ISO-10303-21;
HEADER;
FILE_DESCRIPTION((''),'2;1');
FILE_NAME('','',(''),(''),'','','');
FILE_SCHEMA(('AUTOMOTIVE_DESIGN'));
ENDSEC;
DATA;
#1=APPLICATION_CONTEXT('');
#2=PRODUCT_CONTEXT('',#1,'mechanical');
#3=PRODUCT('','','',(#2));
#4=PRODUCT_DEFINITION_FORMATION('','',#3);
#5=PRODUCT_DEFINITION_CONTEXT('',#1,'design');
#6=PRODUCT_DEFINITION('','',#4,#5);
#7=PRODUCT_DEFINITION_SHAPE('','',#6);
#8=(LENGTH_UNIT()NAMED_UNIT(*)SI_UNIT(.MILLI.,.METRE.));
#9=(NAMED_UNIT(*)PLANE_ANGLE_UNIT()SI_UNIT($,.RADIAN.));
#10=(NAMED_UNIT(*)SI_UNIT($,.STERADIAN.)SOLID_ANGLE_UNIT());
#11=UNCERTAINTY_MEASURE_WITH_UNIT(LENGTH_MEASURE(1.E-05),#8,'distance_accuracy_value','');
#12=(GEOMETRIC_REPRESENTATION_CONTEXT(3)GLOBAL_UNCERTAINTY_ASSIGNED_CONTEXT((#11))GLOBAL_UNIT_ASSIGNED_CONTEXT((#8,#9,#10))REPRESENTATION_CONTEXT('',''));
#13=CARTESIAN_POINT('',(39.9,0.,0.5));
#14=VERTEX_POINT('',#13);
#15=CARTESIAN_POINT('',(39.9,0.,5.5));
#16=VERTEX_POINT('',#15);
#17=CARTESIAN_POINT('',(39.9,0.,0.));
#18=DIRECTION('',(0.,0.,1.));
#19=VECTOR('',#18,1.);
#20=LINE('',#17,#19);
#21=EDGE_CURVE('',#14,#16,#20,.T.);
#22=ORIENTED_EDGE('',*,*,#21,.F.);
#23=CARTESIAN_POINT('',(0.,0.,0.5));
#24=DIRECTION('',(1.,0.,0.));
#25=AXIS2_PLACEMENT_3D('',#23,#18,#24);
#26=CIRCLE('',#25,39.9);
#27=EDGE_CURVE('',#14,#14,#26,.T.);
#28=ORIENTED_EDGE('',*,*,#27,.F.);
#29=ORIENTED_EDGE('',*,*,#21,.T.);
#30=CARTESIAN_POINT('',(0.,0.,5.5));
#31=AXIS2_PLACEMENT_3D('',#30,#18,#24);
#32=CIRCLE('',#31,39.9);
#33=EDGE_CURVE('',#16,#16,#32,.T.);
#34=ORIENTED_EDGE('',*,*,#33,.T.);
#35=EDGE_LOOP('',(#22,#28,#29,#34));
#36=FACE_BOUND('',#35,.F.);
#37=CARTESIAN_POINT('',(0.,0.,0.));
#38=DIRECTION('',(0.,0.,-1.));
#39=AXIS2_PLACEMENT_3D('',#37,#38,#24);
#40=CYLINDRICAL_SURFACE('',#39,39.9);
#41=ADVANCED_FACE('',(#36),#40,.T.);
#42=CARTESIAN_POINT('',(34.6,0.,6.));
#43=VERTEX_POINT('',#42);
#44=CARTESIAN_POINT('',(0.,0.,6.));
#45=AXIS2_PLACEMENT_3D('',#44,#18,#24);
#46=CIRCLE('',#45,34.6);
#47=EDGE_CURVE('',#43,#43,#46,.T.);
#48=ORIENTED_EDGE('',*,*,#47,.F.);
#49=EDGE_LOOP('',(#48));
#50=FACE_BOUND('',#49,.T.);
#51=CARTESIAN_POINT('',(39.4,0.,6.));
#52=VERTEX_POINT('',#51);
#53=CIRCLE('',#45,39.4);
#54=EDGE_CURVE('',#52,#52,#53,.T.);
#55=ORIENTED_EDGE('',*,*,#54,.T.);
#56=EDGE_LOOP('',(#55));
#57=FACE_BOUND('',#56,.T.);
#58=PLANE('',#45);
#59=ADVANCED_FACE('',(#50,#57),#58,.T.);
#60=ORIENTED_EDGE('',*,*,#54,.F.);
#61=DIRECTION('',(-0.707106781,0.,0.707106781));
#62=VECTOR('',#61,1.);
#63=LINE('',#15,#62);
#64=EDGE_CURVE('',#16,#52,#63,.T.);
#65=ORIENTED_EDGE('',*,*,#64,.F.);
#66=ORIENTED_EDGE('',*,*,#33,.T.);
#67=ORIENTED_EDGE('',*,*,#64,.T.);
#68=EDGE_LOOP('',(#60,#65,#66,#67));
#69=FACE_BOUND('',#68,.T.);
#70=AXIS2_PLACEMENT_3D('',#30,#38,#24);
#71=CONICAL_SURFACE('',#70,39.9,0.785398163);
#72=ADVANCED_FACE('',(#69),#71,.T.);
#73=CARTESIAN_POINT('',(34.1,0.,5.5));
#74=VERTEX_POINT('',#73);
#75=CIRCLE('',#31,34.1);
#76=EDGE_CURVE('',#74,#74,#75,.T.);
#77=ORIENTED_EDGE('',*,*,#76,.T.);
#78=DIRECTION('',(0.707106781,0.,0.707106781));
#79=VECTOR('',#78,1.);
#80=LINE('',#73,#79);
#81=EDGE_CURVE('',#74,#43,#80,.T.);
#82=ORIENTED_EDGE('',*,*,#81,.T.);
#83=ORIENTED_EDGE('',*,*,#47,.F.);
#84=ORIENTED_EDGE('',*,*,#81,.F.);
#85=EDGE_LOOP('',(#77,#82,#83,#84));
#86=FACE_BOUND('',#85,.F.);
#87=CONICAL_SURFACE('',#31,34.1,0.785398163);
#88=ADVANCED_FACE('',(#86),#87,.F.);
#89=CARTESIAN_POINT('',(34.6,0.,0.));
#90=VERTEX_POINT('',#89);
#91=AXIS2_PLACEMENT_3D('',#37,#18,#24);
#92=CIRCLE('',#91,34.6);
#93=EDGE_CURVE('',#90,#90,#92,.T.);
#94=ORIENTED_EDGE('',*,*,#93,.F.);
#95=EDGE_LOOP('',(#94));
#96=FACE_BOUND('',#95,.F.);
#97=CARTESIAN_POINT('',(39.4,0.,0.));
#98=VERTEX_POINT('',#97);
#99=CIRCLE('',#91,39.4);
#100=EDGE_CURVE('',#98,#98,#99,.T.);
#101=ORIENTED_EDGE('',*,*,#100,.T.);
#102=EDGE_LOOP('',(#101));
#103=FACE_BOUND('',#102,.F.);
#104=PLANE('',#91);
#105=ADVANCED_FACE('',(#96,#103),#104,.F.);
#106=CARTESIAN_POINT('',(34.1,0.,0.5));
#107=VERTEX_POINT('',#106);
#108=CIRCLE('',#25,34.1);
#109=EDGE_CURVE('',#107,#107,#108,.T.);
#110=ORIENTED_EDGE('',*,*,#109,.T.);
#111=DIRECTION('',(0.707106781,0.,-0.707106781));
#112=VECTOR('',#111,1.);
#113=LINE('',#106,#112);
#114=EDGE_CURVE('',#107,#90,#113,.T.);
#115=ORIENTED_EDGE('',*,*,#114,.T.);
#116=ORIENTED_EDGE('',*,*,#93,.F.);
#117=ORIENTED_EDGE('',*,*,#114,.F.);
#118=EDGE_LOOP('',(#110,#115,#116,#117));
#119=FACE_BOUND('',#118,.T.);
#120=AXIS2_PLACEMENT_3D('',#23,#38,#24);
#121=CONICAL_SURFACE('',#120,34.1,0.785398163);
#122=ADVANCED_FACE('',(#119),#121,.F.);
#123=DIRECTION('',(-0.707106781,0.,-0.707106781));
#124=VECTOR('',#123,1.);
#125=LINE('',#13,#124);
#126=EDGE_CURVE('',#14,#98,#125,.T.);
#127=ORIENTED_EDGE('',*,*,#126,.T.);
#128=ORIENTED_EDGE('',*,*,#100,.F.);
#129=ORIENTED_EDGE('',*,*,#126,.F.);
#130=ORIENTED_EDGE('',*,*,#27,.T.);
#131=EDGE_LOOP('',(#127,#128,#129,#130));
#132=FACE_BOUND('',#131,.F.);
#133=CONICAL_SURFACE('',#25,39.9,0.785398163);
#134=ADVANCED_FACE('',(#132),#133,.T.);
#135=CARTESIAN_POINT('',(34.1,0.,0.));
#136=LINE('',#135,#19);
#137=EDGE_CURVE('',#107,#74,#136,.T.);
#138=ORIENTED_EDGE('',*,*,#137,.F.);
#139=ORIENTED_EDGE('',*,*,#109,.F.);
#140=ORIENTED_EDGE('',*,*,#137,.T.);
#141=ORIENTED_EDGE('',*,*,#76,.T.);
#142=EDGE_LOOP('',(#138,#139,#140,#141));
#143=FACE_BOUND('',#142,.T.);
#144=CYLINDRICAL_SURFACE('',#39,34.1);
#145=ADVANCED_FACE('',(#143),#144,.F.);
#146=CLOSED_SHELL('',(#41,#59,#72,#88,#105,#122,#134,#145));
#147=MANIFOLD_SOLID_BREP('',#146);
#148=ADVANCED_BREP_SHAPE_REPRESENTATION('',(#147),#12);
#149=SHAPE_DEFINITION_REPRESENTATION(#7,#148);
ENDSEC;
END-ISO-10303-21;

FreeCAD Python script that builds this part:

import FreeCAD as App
import Part
import Sketcher


def edges_at(feature, points):
    """Names of the edges that pass closest to the given points."""
    edges = feature.Shape.Edges
    near = lambda p: min(range(len(edges)), key=lambda i: edges[i].distToShape(Part.Vertex(*p))[0])
    return sorted({f"Edge{near(p) + 1}" for p in points})

doc = App.newDocument("Part")
params = doc.addObject("Spreadsheet::Sheet", "Params")
for row, (alias, value) in enumerate([
    ("sketch1_diameter", "79.8 mm"),
    ("sketch1_diameter2", "68.2 mm"),
    ("pad1_length", "6 mm"),
    ("chamfer_size", "0.5 mm"),
], start=1):
    params.set(f"A{row}", alias)
    params.set(f"B{row}", "=" + value)
    params.setAlias(f"B{row}", alias)

body = doc.addObject("PartDesign::Body", "Body")

sketch1 = doc.addObject("Sketcher::SketchObject", "Sketch")
body.addObject(sketch1)
sketch1.AttachmentSupport = (doc.XY_Plane, [""])
sketch1.MapMode = "FlatFace"
sketch1.addGeometry(Part.Circle(App.Vector(0, 0, 0), App.Vector(0, 0, 1), 40), False)
sketch1.addGeometry(Part.Circle(App.Vector(0, 0, 0), App.Vector(0, 0, 1), 34), False)
sketch1.addConstraint(Sketcher.Constraint("Coincident", 0, 3, -1, 1))
sketch1.addConstraint(Sketcher.Constraint("Coincident", 1, 3, -1, 1))
sketch1.addConstraint(Sketcher.Constraint("Diameter", 0, 79.8))
sketch1.addConstraint(Sketcher.Constraint("Diameter", 1, 68.2))
sketch1.setExpression("Constraints[2]", "Params.sketch1_diameter")
sketch1.setExpression("Constraints[3]", "Params.sketch1_diameter2")
pad1 = doc.addObject("PartDesign::Pad", "Pad")
body.addObject(pad1)
pad1.Profile = sketch1
pad1.setExpression("Length", "Params.pad1_length")
doc.recompute()

chamfer = doc.addObject("PartDesign::Chamfer", "Chamfer")
body.addObject(chamfer)
chamfer.Base = (pad1, edges_at(pad1, [
    (-34.1, 0, 6),
    (-34.1, 0, 0),
    (-39.9, 0, 6),
    (-39.9, 0, 0),
]))
chamfer.setExpression("Size", "Params.chamfer_size")

doc.recompute()
